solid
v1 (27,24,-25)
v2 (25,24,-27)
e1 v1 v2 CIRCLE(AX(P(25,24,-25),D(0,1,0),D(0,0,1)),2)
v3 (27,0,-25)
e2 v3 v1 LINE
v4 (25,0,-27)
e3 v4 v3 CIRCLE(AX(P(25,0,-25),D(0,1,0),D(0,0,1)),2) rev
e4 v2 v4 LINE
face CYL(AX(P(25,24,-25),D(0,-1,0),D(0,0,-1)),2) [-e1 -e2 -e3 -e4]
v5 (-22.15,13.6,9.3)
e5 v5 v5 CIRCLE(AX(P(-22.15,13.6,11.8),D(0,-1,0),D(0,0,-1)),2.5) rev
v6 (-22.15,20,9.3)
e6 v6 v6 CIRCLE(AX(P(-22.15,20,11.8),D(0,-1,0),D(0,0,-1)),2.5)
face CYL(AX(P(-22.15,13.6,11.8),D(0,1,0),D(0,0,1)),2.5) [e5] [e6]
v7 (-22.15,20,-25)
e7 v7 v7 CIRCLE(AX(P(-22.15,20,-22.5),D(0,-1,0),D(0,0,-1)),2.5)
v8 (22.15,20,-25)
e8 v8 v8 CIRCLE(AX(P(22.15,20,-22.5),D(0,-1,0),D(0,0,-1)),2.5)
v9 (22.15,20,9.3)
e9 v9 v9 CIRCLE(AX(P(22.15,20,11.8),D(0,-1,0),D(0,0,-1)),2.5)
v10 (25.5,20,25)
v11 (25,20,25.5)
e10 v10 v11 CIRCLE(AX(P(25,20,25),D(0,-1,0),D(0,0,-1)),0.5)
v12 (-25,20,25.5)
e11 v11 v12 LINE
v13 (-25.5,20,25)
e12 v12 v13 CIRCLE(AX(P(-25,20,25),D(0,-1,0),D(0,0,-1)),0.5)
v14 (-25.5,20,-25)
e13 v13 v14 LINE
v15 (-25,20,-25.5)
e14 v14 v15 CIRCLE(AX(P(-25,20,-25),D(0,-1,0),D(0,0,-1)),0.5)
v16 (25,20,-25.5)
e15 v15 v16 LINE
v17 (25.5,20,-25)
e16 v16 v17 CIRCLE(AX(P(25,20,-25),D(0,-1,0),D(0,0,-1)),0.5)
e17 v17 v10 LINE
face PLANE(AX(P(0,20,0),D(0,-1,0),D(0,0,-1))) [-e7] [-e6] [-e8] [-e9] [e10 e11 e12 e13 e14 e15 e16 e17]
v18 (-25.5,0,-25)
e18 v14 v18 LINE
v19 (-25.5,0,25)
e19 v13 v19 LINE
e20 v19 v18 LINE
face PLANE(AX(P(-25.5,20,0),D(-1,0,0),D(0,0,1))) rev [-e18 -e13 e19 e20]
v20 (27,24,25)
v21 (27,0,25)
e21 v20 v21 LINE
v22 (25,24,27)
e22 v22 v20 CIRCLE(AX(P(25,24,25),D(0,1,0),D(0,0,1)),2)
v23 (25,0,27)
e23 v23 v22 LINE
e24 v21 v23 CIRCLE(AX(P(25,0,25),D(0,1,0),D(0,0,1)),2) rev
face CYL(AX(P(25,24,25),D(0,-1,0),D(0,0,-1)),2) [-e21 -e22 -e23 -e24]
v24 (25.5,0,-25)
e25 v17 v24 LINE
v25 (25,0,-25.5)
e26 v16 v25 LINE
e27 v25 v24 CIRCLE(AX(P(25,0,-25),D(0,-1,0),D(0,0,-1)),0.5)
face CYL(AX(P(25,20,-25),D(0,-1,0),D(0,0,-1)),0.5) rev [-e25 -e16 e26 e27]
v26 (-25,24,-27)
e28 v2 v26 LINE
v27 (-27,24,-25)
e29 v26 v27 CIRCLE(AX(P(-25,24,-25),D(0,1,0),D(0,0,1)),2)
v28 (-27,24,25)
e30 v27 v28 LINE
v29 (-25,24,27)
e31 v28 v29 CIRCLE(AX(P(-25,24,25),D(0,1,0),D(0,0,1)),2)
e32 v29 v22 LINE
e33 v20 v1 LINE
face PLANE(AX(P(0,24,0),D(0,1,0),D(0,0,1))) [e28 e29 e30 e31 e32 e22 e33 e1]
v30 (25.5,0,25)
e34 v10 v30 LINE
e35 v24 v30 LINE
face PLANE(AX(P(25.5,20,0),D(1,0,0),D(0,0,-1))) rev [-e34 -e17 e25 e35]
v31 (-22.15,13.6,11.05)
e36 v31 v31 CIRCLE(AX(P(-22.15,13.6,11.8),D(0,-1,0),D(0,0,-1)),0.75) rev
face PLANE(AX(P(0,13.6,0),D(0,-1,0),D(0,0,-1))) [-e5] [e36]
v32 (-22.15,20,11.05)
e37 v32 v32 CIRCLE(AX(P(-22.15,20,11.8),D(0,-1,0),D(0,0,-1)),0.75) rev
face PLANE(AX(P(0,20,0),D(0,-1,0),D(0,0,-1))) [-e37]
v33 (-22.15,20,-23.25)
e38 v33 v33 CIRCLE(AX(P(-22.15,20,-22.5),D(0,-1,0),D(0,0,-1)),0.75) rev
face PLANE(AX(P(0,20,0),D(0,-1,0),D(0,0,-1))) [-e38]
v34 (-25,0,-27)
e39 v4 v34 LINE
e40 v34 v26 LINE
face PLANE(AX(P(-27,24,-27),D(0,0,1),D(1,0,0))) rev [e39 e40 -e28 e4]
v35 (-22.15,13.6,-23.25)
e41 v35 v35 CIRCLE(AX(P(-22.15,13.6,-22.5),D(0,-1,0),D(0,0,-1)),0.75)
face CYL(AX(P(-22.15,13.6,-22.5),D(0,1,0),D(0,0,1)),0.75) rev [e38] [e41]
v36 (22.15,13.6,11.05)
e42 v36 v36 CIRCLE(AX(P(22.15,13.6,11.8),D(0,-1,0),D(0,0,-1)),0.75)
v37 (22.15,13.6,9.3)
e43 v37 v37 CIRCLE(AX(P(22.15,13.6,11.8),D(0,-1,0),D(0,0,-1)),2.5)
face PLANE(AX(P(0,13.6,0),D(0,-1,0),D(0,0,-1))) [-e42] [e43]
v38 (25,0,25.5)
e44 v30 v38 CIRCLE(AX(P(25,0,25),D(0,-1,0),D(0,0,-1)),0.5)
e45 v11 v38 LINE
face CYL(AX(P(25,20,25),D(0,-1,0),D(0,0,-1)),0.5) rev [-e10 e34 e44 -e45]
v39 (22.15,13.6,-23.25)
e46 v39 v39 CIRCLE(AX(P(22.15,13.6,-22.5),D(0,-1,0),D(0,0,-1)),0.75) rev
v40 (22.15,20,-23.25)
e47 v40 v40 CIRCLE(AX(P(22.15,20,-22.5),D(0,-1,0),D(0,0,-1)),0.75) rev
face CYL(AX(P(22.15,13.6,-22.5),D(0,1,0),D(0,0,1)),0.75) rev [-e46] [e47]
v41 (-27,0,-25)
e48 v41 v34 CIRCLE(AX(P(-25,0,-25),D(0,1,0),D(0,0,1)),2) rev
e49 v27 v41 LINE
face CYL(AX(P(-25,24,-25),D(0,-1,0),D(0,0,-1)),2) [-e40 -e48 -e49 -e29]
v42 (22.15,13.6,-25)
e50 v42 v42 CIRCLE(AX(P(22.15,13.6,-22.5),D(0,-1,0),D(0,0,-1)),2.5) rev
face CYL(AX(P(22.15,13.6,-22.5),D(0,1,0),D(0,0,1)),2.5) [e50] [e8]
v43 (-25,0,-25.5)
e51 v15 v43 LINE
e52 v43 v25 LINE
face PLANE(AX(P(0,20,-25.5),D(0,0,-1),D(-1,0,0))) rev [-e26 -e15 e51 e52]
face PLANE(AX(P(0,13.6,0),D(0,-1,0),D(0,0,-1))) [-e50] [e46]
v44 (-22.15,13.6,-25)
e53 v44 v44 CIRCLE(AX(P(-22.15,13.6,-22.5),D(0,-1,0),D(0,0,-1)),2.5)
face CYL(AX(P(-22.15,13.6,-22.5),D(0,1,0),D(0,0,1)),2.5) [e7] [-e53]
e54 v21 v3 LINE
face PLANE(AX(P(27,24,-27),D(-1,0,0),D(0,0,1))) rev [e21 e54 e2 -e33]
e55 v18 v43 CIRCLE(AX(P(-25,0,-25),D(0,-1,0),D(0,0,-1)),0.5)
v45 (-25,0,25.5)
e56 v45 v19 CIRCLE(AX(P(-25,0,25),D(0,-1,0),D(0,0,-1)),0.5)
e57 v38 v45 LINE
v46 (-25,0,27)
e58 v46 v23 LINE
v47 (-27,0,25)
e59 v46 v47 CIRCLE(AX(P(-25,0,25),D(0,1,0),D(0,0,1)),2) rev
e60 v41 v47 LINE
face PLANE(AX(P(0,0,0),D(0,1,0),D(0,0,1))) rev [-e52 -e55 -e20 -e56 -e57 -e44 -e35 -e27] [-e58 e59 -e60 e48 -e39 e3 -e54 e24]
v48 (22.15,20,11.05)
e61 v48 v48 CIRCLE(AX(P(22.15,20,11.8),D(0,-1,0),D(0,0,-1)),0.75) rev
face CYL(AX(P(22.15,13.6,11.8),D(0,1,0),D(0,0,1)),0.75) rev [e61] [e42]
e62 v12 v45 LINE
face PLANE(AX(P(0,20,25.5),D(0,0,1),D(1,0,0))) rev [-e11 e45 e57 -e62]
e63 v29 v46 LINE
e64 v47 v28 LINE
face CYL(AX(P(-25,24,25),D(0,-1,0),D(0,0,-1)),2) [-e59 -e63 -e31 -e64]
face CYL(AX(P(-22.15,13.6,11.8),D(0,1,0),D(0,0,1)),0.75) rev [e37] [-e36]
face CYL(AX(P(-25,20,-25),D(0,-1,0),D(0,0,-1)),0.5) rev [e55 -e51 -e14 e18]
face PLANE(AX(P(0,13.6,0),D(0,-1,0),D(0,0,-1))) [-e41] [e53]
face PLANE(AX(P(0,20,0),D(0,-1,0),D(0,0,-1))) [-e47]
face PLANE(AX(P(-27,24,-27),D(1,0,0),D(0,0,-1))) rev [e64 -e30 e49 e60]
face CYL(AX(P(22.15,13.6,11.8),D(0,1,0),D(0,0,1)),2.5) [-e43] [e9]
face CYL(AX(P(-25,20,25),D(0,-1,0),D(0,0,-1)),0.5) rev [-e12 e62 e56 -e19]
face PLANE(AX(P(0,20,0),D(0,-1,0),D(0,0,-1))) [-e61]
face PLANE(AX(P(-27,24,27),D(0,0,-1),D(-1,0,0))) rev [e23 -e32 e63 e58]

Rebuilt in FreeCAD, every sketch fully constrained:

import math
import FreeCAD as App
import Part
import Sketcher


def edges_at(feature, points):
    """Names of the edges that pass closest to the given points."""
    edges = feature.Shape.Edges
    near = lambda p: min(range(len(edges)), key=lambda i: edges[i].distToShape(Part.Vertex(*p))[0])
    return sorted({f"Edge{near(p) + 1}" for p in points})


def add_polygon(sketch, points):
    """Adds a closed chain of lines whose ends are joined by coincident constraints."""
    first, n = sketch.GeometryCount, len(points)
    for a, b in zip(points, points[1:] + points[:1]):
        sketch.addGeometry(Part.LineSegment(App.Vector(*a, 0), App.Vector(*b, 0)), False)
    for i in range(n):
        sketch.addConstraint(Sketcher.Constraint("Coincident", first + i, 2, first + (i + 1) % n, 1))

doc = App.newDocument("Part")
body = doc.addObject("PartDesign::Body", "Body")

# Sketch on XZ plane
sketch1 = doc.addObject("Sketcher::SketchObject", "Sketch")
body.addObject(sketch1)
sketch1.AttachmentSupport = (doc.XZ_Plane, [""])
sketch1.MapMode = "FlatFace"
add_polygon(sketch1, [(-27, -27), (-27, 27), (27, 27), (27, -27)])  # lines 0-3
sketch1.addConstraint([
    Sketcher.Constraint("Vertical", 0),
    Sketcher.Constraint("Horizontal", 1),
    Sketcher.Constraint("Vertical", 2),
    Sketcher.Constraint("Horizontal", 3),
    Sketcher.Constraint("Symmetric", 0, 2, 2, 2, -1, 1),
    Sketcher.Constraint("Equal", 3, 0),
    Sketcher.Constraint("DistanceX", 1, 1, 1, 2, 54.0),
])
pad1 = doc.addObject("PartDesign::Pad", "Pad")
body.addObject(pad1)
pad1.Profile = sketch1
pad1.Length = 24
pad1.Reversed = True
doc.recompute()

fillet = doc.addObject("PartDesign::Fillet", "Fillet")
body.addObject(fillet)
fillet.Base = (pad1, edges_at(pad1, [(-27, 12, 27)]))
fillet.Radius = 2
doc.recompute()

fillet2 = doc.addObject("PartDesign::Fillet", "Fillet001")
body.addObject(fillet2)
fillet2.Base = (fillet, edges_at(fillet, [(-27, 12, -27)]))
fillet2.Radius = 2
doc.recompute()

fillet3 = doc.addObject("PartDesign::Fillet", "Fillet002")
body.addObject(fillet3)
fillet3.Base = (fillet2, edges_at(fillet2, [(27, 12, 27)]))
fillet3.Radius = 2
doc.recompute()

fillet4 = doc.addObject("PartDesign::Fillet", "Fillet003")
body.addObject(fillet4)
fillet4.Base = (fillet3, edges_at(fillet3, [(27, 12, -27)]))
fillet4.Radius = 2

# Sketch on XZ plane
sketch2 = doc.addObject("Sketcher::SketchObject", "Sketch001")
body.addObject(sketch2)
sketch2.AttachmentSupport = (doc.XZ_Plane, [""])
sketch2.MapMode = "FlatFace"
sketch2.addGeometry([
    Part.LineSegment(App.Vector(-25.5, 25, 0), App.Vector(-25.5, -25, 0)),  # 0
    Part.ArcOfCircle(Part.Circle(App.Vector(-25, -25, 0), App.Vector(0, 0, 1), 0.5), math.radians(180), math.radians(270)),  # 1
    Part.LineSegment(App.Vector(-25, -25.5, 0), App.Vector(25, -25.5, 0)),  # 2
    Part.ArcOfCircle(Part.Circle(App.Vector(25, -25, 0), App.Vector(0, 0, 1), 0.5), math.radians(-90), math.radians(0)),  # 3
    Part.LineSegment(App.Vector(25.5, -25, 0), App.Vector(25.5, 25, 0)),  # 4
    Part.ArcOfCircle(Part.Circle(App.Vector(25, 25, 0), App.Vector(0, 0, 1), 0.5), math.radians(0), math.radians(90)),  # 5
    Part.LineSegment(App.Vector(25, 25.5, 0), App.Vector(-25, 25.5, 0)),  # 6
    Part.ArcOfCircle(Part.Circle(App.Vector(-25, 25, 0), App.Vector(0, 0, 1), 0.5), math.radians(90), math.radians(180)),  # 7
], False)
sketch2.addConstraint([
    Sketcher.Constraint("Tangent", 0, 2, 1, 1),
    Sketcher.Constraint("Tangent", 1, 2, 2, 1),
    Sketcher.Constraint("Tangent", 2, 2, 3, 1),
    Sketcher.Constraint("Tangent", 3, 2, 4, 1),
    Sketcher.Constraint("Tangent", 4, 2, 5, 1),
    Sketcher.Constraint("Tangent", 5, 2, 6, 1),
    Sketcher.Constraint("Tangent", 6, 2, 7, 1),
    Sketcher.Constraint("Tangent", 7, 2, 0, 1),
    Sketcher.Constraint("Vertical", 0),
    Sketcher.Constraint("Horizontal", 2),
    Sketcher.Constraint("Vertical", 4),
    Sketcher.Constraint("Horizontal", 6),
    Sketcher.Constraint("Equal", 1, 3),
    Sketcher.Constraint("Equal", 3, 5),
    Sketcher.Constraint("Equal", 5, 7),
    Sketcher.Constraint("Symmetric", 1, 3, 5, 3, -1, 1),
    Sketcher.Constraint("Equal", 6, 0),
    Sketcher.Constraint("Radius", 1, 0.5),
    Sketcher.Constraint("DistanceX", 2, 1, 2, 2, 50.0),
])
pocket1 = doc.addObject("PartDesign::Pocket", "Pocket")
body.addObject(pocket1)
pocket1.Profile = sketch2
pocket1.Length = 20

# Sketch on XZ plane
sketch3 = doc.addObject("Sketcher::SketchObject", "Sketch002")
body.addObject(sketch3)
sketch3.AttachmentSupport = (doc.XZ_Plane, [""])
sketch3.MapMode = "FlatFace"
sketch3.AttachmentOffset = App.Placement(App.Vector(0, 0, -20), App.Rotation())
sketch3.addGeometry([
    Part.Circle(App.Vector(22.1, -22.5, 0), App.Vector(0, 0, 1), 2.5),  # 0
    Part.Circle(App.Vector(22.1, -22.5, 0), App.Vector(0, 0, 1), 0.8),  # 1
    Part.Circle(App.Vector(-22.1, -22.5, 0), App.Vector(0, 0, 1), 2.5),  # 2
    Part.Circle(App.Vector(-22.1, -22.5, 0), App.Vector(0, 0, 1), 0.8),  # 3
    Part.Circle(App.Vector(22.1, 11.8, 0), App.Vector(0, 0, 1), 2.5),  # 4
    Part.Circle(App.Vector(22.1, 11.8, 0), App.Vector(0, 0, 1), 0.8),  # 5
    Part.Circle(App.Vector(-22.1, 11.8, 0), App.Vector(0, 0, 1), 2.5),  # 6
    Part.Circle(App.Vector(-22.1, 11.8, 0), App.Vector(0, 0, 1), 0.8),  # 7
], False)
sketch3.addConstraint([
    Sketcher.Constraint("Coincident", 1, 3, 0, 3),
    Sketcher.Constraint("Coincident", 3, 3, 2, 3),
    Sketcher.Constraint("Coincident", 5, 3, 4, 3),
    Sketcher.Constraint("Coincident", 7, 3, 6, 3),
    Sketcher.Constraint("Equal", 0, 2),
    Sketcher.Constraint("Equal", 1, 3),
    Sketcher.Constraint("Equal", 2, 4),
    Sketcher.Constraint("Equal", 3, 5),
    Sketcher.Constraint("Equal", 4, 6),
    Sketcher.Constraint("Equal", 5, 7),
    Sketcher.Constraint("Symmetric", 0, 3, 2, 3, -2),
    Sketcher.Constraint("Symmetric", 4, 3, 6, 3, -2),
    Sketcher.Constraint("Vertical", 1, 3, 4, 3),
    Sketcher.Constraint("Diameter", 0, 5.0),
    Sketcher.Constraint("Diameter", 1, 1.5),
    Sketcher.Constraint("DistanceY", 0, 3, -1, 1, 22.5),
    Sketcher.Constraint("DistanceY", -1, 1, 4, 3, 11.8),
    Sketcher.Constraint("DistanceX", 2, 3, 0, 3, 44.3),
])
pad2 = doc.addObject("PartDesign::Pad", "Pad001")
body.addObject(pad2)
pad2.Profile = sketch3
pad2.Length = 6.4

doc.recompute()
